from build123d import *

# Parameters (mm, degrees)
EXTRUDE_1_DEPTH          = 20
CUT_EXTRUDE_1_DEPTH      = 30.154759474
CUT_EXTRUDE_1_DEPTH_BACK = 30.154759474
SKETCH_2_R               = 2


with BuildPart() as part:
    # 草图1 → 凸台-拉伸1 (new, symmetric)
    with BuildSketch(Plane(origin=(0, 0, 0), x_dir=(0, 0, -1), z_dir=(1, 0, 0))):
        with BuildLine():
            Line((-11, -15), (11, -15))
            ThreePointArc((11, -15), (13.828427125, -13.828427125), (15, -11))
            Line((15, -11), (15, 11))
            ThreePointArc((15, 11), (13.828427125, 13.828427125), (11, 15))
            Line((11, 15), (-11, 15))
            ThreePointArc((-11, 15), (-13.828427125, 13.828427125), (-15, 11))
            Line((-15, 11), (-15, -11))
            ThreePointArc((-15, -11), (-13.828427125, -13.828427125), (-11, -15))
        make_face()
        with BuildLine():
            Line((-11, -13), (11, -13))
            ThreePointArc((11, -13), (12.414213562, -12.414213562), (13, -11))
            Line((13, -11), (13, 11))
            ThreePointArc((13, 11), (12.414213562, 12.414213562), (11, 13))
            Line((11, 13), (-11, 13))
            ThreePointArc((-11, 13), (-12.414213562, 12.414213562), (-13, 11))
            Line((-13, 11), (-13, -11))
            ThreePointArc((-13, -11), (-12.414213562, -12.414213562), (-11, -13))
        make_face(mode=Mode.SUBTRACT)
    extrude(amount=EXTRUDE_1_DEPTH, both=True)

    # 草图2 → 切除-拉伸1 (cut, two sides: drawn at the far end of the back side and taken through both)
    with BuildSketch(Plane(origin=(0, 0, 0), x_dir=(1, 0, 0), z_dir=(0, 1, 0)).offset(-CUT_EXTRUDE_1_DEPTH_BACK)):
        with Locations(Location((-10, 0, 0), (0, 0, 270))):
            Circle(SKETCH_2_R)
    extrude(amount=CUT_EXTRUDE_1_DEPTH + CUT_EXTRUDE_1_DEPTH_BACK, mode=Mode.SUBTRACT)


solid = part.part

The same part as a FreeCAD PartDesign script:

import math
import FreeCAD as App
import Part
import Sketcher

V = App.Vector
Q = App.Units.Quantity

doc = App.newDocument("Part")
body = doc.addObject("PartDesign::Body", "Body")

# Sketch on YZ plane
sketch1 = body.newObject("Sketcher::SketchObject", "Sketch")
sketch1.AttachmentSupport = (doc.getObject("YZ_Plane"), [""])
sketch1.MapMode = "FlatFace"
sketch1.addGeometry([
    Part.LineSegment(V(-15, 11, 0), V(-15, -11, 0)),  # 0
    Part.ArcOfCircle(Part.Circle(V(-11, -11, 0), V(0, 0, 1), 4), math.radians(180), math.radians(270)),  # 1
    Part.LineSegment(V(-11, -15, 0), V(11, -15, 0)),  # 2
    Part.ArcOfCircle(Part.Circle(V(11, -11, 0), V(0, 0, 1), 4), math.radians(-90), math.radians(0)),  # 3
    Part.LineSegment(V(15, -11, 0), V(15, 11, 0)),  # 4
    Part.ArcOfCircle(Part.Circle(V(11, 11, 0), V(0, 0, 1), 4), math.radians(0), math.radians(90)),  # 5
    Part.LineSegment(V(11, 15, 0), V(-11, 15, 0)),  # 6
    Part.ArcOfCircle(Part.Circle(V(-11, 11, 0), V(0, 0, 1), 4), math.radians(90), math.radians(180)),  # 7
    Part.LineSegment(V(-13, -11, 0), V(-13, 11, 0)),  # 8
    Part.ArcOfCircle(Part.Circle(V(-11, 11, 0), V(0, 0, 1), 2), math.radians(90), math.radians(180)),  # 9
    Part.LineSegment(V(-11, 13, 0), V(11, 13, 0)),  # 10
    Part.ArcOfCircle(Part.Circle(V(11, 11, 0), V(0, 0, 1), 2), math.radians(0), math.radians(90)),  # 11
    Part.LineSegment(V(13, 11, 0), V(13, -11, 0)),  # 12
    Part.ArcOfCircle(Part.Circle(V(11, -11, 0), V(0, 0, 1), 2), math.radians(-90), math.radians(0)),  # 13
    Part.LineSegment(V(11, -13, 0), V(-11, -13, 0)),  # 14
    Part.ArcOfCircle(Part.Circle(V(-11, -11, 0), V(0, 0, 1), 2), math.radians(-180), math.radians(-90)),  # 15
], False)
sketch1.addConstraint([
    Sketcher.Constraint("Tangent", 0, 2, 1, 1),
    Sketcher.Constraint("Tangent", 1, 2, 2, 1),
    Sketcher.Constraint("Tangent", 2, 2, 3, 1),
    Sketcher.Constraint("Tangent", 3, 2, 4, 1),
    Sketcher.Constraint("Tangent", 4, 2, 5, 1),
    Sketcher.Constraint("Tangent", 5, 2, 6, 1),
    Sketcher.Constraint("Tangent", 6, 2, 7, 1),
    Sketcher.Constraint("Tangent", 7, 2, 0, 1),
    Sketcher.Constraint("Tangent", 8, 2, 9, 2),
    Sketcher.Constraint("Tangent", 9, 1, 10, 1),
    Sketcher.Constraint("Tangent", 10, 2, 11, 2),
    Sketcher.Constraint("Tangent", 11, 1, 12, 1),
    Sketcher.Constraint("Tangent", 12, 2, 13, 2),
    Sketcher.Constraint("Tangent", 13, 1, 14, 1),
    Sketcher.Constraint("Tangent", 14, 2, 15, 2),
    Sketcher.Constraint("Tangent", 15, 1, 8, 1),
    Sketcher.Constraint("Vertical", 0),
    Sketcher.Constraint("Horizontal", 2),
    Sketcher.Constraint("Vertical", 4),
    Sketcher.Constraint("Horizontal", 6),
    Sketcher.Constraint("Vertical", 8),
    Sketcher.Constraint("Horizontal", 10),
    Sketcher.Constraint("Vertical", 12),
    Sketcher.Constraint("Horizontal", 14),
    Sketcher.Constraint("Coincident", 9, 3, 7, 3),
    Sketcher.Constraint("Coincident", 11, 3, 5, 3),
    Sketcher.Constraint("Coincident", 13, 3, 3, 3),
    Sketcher.Constraint("Equal", 1, 3),
    Sketcher.Constraint("Equal", 3, 5),
    Sketcher.Constraint("Equal", 5, 7),
    Sketcher.Constraint("Equal", 13, 15),
    Sketcher.Constraint("Symmetric", 1, 3, 5, 3, -1, 1),
    Sketcher.Constraint("Equal", 14, 0),
    Sketcher.Constraint("Radius", 1, Q("4 mm")),
    Sketcher.Constraint("Radius", 9, Q("2 mm")),
    Sketcher.Constraint("DistanceX", 2, 1, 2, 2, Q("22 mm")),
])
pad1 = body.newObject("PartDesign::Pad", "Pad")
pad1.Profile = sketch1
pad1.Length = 40
pad1.Midplane = True

# Sketch on XZ plane
sketch2 = body.newObject("Sketcher::SketchObject", "Sketch001")
sketch2.AttachmentSupport = (doc.getObject("XZ_Plane"), [""])
sketch2.MapMode = "FlatFace"
sketch2.addGeometry(Part.Circle(V(-10, 0, 0), V(0, 0, 1), 2), False)
sketch2.addConstraint([
    Sketcher.Constraint("PointOnObject", 0, 3, -1),
    Sketcher.Constraint("Diameter", 0, Q("4 mm")),
    Sketcher.Constraint("DistanceX", 0, 3, -1, 1, Q("10 mm")),
])
pocket1 = body.newObject("PartDesign::Pocket", "Pocket")
pocket1.Profile = sketch2
pocket1.Type = "ThroughAll"
pocket1.Midplane = True

doc.recompute()
